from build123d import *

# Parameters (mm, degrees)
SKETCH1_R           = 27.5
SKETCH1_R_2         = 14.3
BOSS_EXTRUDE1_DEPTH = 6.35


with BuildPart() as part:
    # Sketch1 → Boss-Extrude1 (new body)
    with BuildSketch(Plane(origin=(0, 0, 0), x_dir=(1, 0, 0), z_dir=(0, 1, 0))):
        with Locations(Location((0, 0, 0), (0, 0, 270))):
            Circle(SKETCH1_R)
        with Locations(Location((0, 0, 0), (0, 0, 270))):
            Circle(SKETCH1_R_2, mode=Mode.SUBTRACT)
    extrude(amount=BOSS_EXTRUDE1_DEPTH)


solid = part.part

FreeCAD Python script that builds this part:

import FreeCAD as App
import Part
import Sketcher

V = App.Vector
Q = App.Units.Quantity

doc = App.newDocument("Part")
body = doc.addObject("PartDesign::Body", "Body")

# Sketch on XZ plane
sketch1 = body.newObject("Sketcher::SketchObject", "Sketch")
sketch1.AttachmentSupport = (doc.getObject("XZ_Plane"), [""])
sketch1.MapMode = "FlatFace"
sketch1.addGeometry([
    Part.Circle(V(0, 0, 0), V(0, 0, 1), 28),
    Part.Circle(V(0, 0, 0), V(0, 0, 1), 14),
], False)
sketch1.addConstraint([
    Sketcher.Constraint("Coincident", 0, 3, -1, 1),
    Sketcher.Constraint("Coincident", 1, 3, -1, 1),
    Sketcher.Constraint("Diameter", 0, Q("55 mm")),
    Sketcher.Constraint("Diameter", 1, Q("28.6 mm")),
])
pad1 = body.newObject("PartDesign::Pad", "Pad")
pad1.Profile = sketch1
pad1.Length = 6.35
pad1.Reversed = True

doc.recompute()
